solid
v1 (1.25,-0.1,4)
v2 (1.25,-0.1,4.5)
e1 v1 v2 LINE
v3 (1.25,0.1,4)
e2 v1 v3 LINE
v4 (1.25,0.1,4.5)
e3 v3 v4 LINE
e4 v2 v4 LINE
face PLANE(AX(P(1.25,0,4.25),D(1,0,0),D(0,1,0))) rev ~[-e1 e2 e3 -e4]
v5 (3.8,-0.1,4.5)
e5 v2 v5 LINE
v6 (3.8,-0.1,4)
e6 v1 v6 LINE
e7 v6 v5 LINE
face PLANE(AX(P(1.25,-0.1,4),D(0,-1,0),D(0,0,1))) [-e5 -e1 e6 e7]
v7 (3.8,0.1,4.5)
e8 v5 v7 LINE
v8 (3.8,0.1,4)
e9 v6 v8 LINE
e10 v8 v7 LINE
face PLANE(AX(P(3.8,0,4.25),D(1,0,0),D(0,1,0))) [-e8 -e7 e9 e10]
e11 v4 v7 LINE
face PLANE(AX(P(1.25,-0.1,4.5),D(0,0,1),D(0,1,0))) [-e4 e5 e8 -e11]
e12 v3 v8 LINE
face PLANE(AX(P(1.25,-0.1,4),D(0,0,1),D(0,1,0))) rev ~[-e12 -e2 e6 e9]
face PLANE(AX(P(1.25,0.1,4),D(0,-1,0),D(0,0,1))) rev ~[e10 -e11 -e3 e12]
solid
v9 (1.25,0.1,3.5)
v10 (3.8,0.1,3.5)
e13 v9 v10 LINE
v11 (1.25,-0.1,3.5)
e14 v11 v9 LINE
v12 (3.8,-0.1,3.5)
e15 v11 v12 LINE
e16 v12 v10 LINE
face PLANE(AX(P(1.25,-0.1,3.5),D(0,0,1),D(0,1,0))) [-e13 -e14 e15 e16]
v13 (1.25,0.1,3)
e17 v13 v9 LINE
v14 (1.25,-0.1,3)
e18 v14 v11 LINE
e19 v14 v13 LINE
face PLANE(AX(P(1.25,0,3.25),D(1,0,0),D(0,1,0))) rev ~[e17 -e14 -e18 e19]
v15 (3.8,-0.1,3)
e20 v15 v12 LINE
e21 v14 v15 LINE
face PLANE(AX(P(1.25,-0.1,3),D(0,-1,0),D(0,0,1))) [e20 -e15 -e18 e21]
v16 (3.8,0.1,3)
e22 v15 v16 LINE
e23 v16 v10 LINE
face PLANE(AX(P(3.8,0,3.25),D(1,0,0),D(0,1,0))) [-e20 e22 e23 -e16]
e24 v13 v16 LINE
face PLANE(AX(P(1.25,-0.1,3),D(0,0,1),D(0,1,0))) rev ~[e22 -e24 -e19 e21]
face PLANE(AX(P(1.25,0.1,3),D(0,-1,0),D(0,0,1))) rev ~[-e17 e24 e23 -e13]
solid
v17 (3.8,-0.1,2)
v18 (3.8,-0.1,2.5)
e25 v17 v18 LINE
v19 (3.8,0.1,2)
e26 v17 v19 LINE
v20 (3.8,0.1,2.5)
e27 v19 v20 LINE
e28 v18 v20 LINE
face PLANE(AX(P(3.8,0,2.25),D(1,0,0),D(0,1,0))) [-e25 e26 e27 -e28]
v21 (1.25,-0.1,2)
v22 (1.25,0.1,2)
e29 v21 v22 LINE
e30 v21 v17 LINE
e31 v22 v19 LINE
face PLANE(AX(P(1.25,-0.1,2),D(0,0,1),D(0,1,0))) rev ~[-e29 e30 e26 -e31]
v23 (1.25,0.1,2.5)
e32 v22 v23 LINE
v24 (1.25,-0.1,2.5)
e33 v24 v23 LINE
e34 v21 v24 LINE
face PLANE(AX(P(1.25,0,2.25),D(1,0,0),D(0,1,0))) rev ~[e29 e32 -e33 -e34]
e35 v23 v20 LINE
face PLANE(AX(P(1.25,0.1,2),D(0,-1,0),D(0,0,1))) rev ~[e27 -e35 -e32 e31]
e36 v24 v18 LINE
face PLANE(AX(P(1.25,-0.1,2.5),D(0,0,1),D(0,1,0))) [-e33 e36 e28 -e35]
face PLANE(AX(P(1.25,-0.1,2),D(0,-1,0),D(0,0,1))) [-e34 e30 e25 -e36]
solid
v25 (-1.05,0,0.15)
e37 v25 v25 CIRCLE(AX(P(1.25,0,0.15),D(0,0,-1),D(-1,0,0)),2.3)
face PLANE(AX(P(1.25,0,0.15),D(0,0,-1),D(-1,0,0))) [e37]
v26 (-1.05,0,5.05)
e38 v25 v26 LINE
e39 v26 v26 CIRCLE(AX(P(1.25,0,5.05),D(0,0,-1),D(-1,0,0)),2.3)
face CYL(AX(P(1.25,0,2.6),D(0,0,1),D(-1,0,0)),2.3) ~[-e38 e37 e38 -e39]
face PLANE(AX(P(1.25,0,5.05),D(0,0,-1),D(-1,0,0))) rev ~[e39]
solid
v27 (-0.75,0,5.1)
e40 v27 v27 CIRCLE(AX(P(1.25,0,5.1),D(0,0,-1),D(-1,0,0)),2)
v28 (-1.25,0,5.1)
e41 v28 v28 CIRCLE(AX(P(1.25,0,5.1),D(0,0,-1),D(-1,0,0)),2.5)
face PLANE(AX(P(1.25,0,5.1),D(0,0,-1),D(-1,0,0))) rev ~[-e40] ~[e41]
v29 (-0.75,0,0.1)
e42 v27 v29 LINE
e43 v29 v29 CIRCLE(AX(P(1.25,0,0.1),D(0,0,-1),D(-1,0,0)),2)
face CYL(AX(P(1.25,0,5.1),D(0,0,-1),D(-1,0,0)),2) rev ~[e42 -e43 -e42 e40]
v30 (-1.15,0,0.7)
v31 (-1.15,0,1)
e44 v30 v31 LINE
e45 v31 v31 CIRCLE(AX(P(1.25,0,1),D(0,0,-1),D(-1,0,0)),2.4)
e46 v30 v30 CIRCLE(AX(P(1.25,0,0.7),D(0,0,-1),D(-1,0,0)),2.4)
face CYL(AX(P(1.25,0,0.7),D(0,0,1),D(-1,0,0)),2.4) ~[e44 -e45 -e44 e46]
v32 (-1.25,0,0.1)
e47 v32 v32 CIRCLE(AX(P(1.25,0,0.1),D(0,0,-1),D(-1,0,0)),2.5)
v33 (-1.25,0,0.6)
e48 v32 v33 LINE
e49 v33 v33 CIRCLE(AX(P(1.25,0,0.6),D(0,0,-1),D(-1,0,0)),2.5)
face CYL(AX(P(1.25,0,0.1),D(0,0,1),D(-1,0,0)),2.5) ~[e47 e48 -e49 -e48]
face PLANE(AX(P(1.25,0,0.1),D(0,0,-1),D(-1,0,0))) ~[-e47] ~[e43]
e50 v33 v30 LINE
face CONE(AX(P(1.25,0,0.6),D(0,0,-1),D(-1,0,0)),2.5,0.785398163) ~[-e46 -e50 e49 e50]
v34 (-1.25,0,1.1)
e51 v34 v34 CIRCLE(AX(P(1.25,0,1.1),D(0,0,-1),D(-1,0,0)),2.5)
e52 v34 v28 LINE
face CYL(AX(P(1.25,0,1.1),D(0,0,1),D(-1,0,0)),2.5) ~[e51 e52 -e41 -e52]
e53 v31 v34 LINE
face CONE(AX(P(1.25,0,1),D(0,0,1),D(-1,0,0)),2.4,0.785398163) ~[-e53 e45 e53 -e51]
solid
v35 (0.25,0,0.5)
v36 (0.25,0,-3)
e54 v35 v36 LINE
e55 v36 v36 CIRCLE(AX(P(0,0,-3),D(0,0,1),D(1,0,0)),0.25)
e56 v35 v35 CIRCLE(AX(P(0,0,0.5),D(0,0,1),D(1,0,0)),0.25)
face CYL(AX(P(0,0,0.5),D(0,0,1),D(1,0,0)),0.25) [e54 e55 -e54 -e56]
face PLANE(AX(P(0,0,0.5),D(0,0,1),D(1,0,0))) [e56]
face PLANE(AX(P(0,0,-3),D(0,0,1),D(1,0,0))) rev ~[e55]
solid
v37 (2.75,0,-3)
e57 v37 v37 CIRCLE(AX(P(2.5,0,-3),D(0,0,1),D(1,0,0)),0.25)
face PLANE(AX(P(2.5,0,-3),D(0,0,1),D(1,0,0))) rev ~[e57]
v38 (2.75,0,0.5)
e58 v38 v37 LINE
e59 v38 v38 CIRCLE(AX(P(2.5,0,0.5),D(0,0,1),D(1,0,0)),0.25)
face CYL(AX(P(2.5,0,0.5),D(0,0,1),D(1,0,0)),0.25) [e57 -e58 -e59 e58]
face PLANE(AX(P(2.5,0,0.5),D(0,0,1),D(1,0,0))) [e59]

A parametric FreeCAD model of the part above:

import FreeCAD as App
import Part
import Sketcher
Q = App.Units.Quantity

doc = App.newDocument("Part")
body = doc.addObject("PartDesign::Body", "Body")

# Sketch on XZ plane
sketch1 = doc.addObject("Sketcher::SketchObject", "Sketch")
body.addObject(sketch1)
sketch1.AttachmentSupport = (doc.XZ_Plane, [""])
sketch1.MapMode = "FlatFace"
sketch1.addGeometry(Part.LineSegment(App.Vector(-1.25, 0.6, 0), App.Vector(-1.25, 0.1, 0)), False)
sketch1.addGeometry(Part.LineSegment(App.Vector(-1.25, 0.1, 0), App.Vector(-0.75, 0.1, 0)), False)
sketch1.addGeometry(Part.LineSegment(App.Vector(-0.75, 0.1, 0), App.Vector(-0.75, 5.1, 0)), False)
sketch1.addGeometry(Part.LineSegment(App.Vector(-0.75, 5.1, 0), App.Vector(-1.25, 5.1, 0)), False)
sketch1.addGeometry(Part.LineSegment(App.Vector(-1.25, 5.1, 0), App.Vector(-1.25, 1.1, 0)), False)
sketch1.addGeometry(Part.LineSegment(App.Vector(-1.25, 1.1, 0), App.Vector(-1.15, 1, 0)), False)
sketch1.addGeometry(Part.LineSegment(App.Vector(-1.15, 1, 0), App.Vector(-1.15, 0.7, 0)), False)
sketch1.addGeometry(Part.LineSegment(App.Vector(-1.15, 0.7, 0), App.Vector(-1.25, 0.6, 0)), False)
sketch1.addGeometry(Part.LineSegment(App.Vector(1.25, 5.1, 0), App.Vector(1.25, 0.1, 0)), True)  # axis
sketch1.addConstraint(Sketcher.Constraint("Coincident", 0, 2, 1, 1))
sketch1.addConstraint(Sketcher.Constraint("Coincident", 1, 2, 2, 1))
sketch1.addConstraint(Sketcher.Constraint("Coincident", 2, 2, 3, 1))
sketch1.addConstraint(Sketcher.Constraint("Coincident", 3, 2, 4, 1))
sketch1.addConstraint(Sketcher.Constraint("Coincident", 4, 2, 5, 1))
sketch1.addConstraint(Sketcher.Constraint("Coincident", 5, 2, 6, 1))
sketch1.addConstraint(Sketcher.Constraint("Coincident", 6, 2, 7, 1))
sketch1.addConstraint(Sketcher.Constraint("Coincident", 7, 2, 0, 1))
sketch1.addConstraint(Sketcher.Constraint("Vertical", 0))
sketch1.addConstraint(Sketcher.Constraint("Horizontal", 1))
sketch1.addConstraint(Sketcher.Constraint("Vertical", 2))
sketch1.addConstraint(Sketcher.Constraint("Horizontal", 3))
sketch1.addConstraint(Sketcher.Constraint("Vertical", 4))
sketch1.addConstraint(Sketcher.Constraint("Vertical", 6))
sketch1.addConstraint(Sketcher.Constraint("Vertical", 8))
sketch1.addConstraint(Sketcher.Constraint("Symmetric", 3, 2, 8, 1, -2))
sketch1.addConstraint(Sketcher.Constraint("Symmetric", 0, 2, 8, 2, -2))
sketch1.addConstraint(Sketcher.Constraint("Perpendicular", 5, 7))
sketch1.addConstraint(Sketcher.Constraint("Equal", 3, 0))
sketch1.addConstraint(Sketcher.Constraint("Equal", 5, 7))
sketch1.addConstraint(Sketcher.Constraint("DistanceY", 2, 1, 2, 2, Q("5 mm")))
sketch1.addConstraint(Sketcher.Constraint("DistanceY", 4, 2, 4, 1, Q("4 mm")))
sketch1.addConstraint(Sketcher.Constraint("DistanceX", 1, 1, 1, 2, Q("0.5 mm")))
sketch1.addConstraint(Sketcher.Constraint("DistanceY", 6, 2, 6, 1, Q("0.3 mm")))
sketch1.addConstraint(Sketcher.Constraint("DistanceY", -1, 1, 5, 2, Q("1 mm")))
sketch1.addConstraint(Sketcher.Constraint("DistanceX", 2, 2, 8, 1, Q("2 mm")))
revolution = doc.addObject("PartDesign::Revolution", "Revolution")
body.addObject(revolution)
revolution.Profile = sketch1
revolution.ReferenceAxis = (sketch1, ["Axis0"])
revolution.Angle = 360
body2 = doc.addObject("PartDesign::Body", "Body001")

# Sketch on XZ plane
sketch2 = doc.addObject("Sketcher::SketchObject", "Sketch001")
body2.addObject(sketch2)
sketch2.AttachmentSupport = (doc.getObject("XZ_Plane001"), [""])
sketch2.MapMode = "FlatFace"
sketch2.addGeometry(Part.LineSegment(App.Vector(-1.05, 5.05, 0), App.Vector(-1.05, 0.15, 0)), False)
sketch2.addGeometry(Part.LineSegment(App.Vector(-1.05, 0.15, 0), App.Vector(1.25, 0.15, 0)), False)
sketch2.addGeometry(Part.LineSegment(App.Vector(1.25, 0.15, 0), App.Vector(1.25, 5.05, 0)), False)
sketch2.addGeometry(Part.LineSegment(App.Vector(1.25, 5.05, 0), App.Vector(-1.05, 5.05, 0)), False)
sketch2.addGeometry(Part.LineSegment(App.Vector(1.25, 5.05, 0), App.Vector(1.25, 0.15, 0)), True)  # axis
sketch2.addConstraint(Sketcher.Constraint("Coincident", 0, 2, 1, 1))
sketch2.addConstraint(Sketcher.Constraint("Coincident", 1, 2, 2, 1))
sketch2.addConstraint(Sketcher.Constraint("Coincident", 2, 2, 3, 1))
sketch2.addConstraint(Sketcher.Constraint("Coincident", 3, 2, 0, 1))
sketch2.addConstraint(Sketcher.Constraint("Vertical", 0))
sketch2.addConstraint(Sketcher.Constraint("Horizontal", 1))
sketch2.addConstraint(Sketcher.Constraint("Vertical", 2))
sketch2.addConstraint(Sketcher.Constraint("Horizontal", 3))
sketch2.addConstraint(Sketcher.Constraint("Vertical", 4))
sketch2.addConstraint(Sketcher.Constraint("Coincident", 4, 1, 2, 2))
sketch2.addConstraint(Sketcher.Constraint("Horizontal", 0, 2, 4, 2))
sketch2.addConstraint(Sketcher.Constraint("DistanceX", 1, 1, 1, 2, Q("2.3 mm")))
sketch2.addConstraint(Sketcher.Constraint("DistanceY", 0, 2, 0, 1, Q("4.9 mm")))
sketch2.addConstraint(Sketcher.Constraint("DistanceX", 0, 2, -1, 1, Q("1.05 mm")))
sketch2.addConstraint(Sketcher.Constraint("DistanceY", -1, 1, 0, 2, Q("0.15 mm")))
revolution2 = doc.addObject("PartDesign::Revolution", "Revolution001")
body2.addObject(revolution2)
revolution2.Profile = sketch2
revolution2.ReferenceAxis = (sketch2, ["Axis0"])
revolution2.Angle = 360
body3 = doc.addObject("PartDesign::Body", "Body002")
body3.AllowCompound = True

# Sketch on XY plane
sketch3 = doc.addObject("Sketcher::SketchObject", "Sketch002")
body3.addObject(sketch3)
sketch3.AttachmentSupport = (doc.getObject("XY_Plane002"), [""])
sketch3.MapMode = "FlatFace"
sketch3.AttachmentOffset = App.Placement(App.Vector(0, 0, 0.5), App.Rotation())
sketch3.addGeometry(Part.Circle(App.Vector(0, 0, 0), App.Vector(0, 0, 1), 0.25), False)
sketch3.addGeometry(Part.Circle(App.Vector(2.5, 0, 0), App.Vector(0, 0, 1), 0.25), False)
sketch3.addConstraint(Sketcher.Constraint("Coincident", 0, 3, -1, 1))
sketch3.addConstraint(Sketcher.Constraint("Equal", 0, 1))
sketch3.addConstraint(Sketcher.Constraint("PointOnObject", 1, 3, -1))
sketch3.addConstraint(Sketcher.Constraint("Diameter", 0, Q("0.5 mm")))
sketch3.addConstraint(Sketcher.Constraint("DistanceX", -1, 1, 1, 3, Q("2.5 mm")))
pad1 = doc.addObject("PartDesign::Pad", "Pad")
body3.addObject(pad1)
pad1.Profile = sketch3
pad1.Length = 3.5
pad1.Reversed = True
body4 = doc.addObject("PartDesign::Body", "Body003")
body4.AllowCompound = True

# Sketch on YZ plane
sketch4 = doc.addObject("Sketcher::SketchObject", "Sketch003")
body4.addObject(sketch4)
sketch4.AttachmentSupport = (doc.getObject("YZ_Plane003"), [""])
sketch4.MapMode = "FlatFace"
sketch4.AttachmentOffset = App.Placement(App.Vector(0, 0, 1.25), App.Rotation())
sketch4.addGeometry(Part.LineSegment(App.Vector(-0.1, 2.5, 0), App.Vector(-0.1, 2, 0)), False)
sketch4.addGeometry(Part.LineSegment(App.Vector(-0.1, 2, 0), App.Vector(0.1, 2, 0)), False)
sketch4.addGeometry(Part.LineSegment(App.Vector(0.1, 2, 0), App.Vector(0.1, 2.5, 0)), False)
sketch4.addGeometry(Part.LineSegment(App.Vector(0.1, 2.5, 0), App.Vector(-0.1, 2.5, 0)), False)
sketch4.addGeometry(Part.LineSegment(App.Vector(-0.1, 3.5, 0), App.Vector(-0.1, 3, 0)), False)
sketch4.addGeometry(Part.LineSegment(App.Vector(-0.1, 3, 0), App.Vector(0.1, 3, 0)), False)
sketch4.addGeometry(Part.LineSegment(App.Vector(0.1, 3, 0), App.Vector(0.1, 3.5, 0)), False)
sketch4.addGeometry(Part.LineSegment(App.Vector(0.1, 3.5, 0), App.Vector(-0.1, 3.5, 0)), False)
sketch4.addGeometry(Part.LineSegment(App.Vector(-0.1, 4.5, 0), App.Vector(-0.1, 4, 0)), False)
sketch4.addGeometry(Part.LineSegment(App.Vector(-0.1, 4, 0), App.Vector(0.1, 4, 0)), False)
sketch4.addGeometry(Part.LineSegment(App.Vector(0.1, 4, 0), App.Vector(0.1, 4.5, 0)), False)
sketch4.addGeometry(Part.LineSegment(App.Vector(0.1, 4.5, 0), App.Vector(-0.1, 4.5, 0)), False)
sketch4.addConstraint(Sketcher.Constraint("Coincident", 0, 2, 1, 1))
sketch4.addConstraint(Sketcher.Constraint("Coincident", 1, 2, 2, 1))
sketch4.addConstraint(Sketcher.Constraint("Coincident", 2, 2, 3, 1))
sketch4.addConstraint(Sketcher.Constraint("Coincident", 3, 2, 0, 1))
sketch4.addConstraint(Sketcher.Constraint("Coincident", 4, 2, 5, 1))
sketch4.addConstraint(Sketcher.Constraint("Coincident", 5, 2, 6, 1))
sketch4.addConstraint(Sketcher.Constraint("Coincident", 6, 2, 7, 1))
sketch4.addConstraint(Sketcher.Constraint("Coincident", 7, 2, 4, 1))
sketch4.addConstraint(Sketcher.Constraint("Coincident", 8, 2, 9, 1))
sketch4.addConstraint(Sketcher.Constraint("Coincident", 9, 2, 10, 1))
sketch4.addConstraint(Sketcher.Constraint("Coincident", 10, 2, 11, 1))
sketch4.addConstraint(Sketcher.Constraint("Coincident", 11, 2, 8, 1))
sketch4.addConstraint(Sketcher.Constraint("Vertical", 0))
sketch4.addConstraint(Sketcher.Constraint("Horizontal", 1))
sketch4.addConstraint(Sketcher.Constraint("Vertical", 2))
sketch4.addConstraint(Sketcher.Constraint("Horizontal", 3))
sketch4.addConstraint(Sketcher.Constraint("Vertical", 4))
sketch4.addConstraint(Sketcher.Constraint("Horizontal", 5))
sketch4.addConstraint(Sketcher.Constraint("Vertical", 6))
sketch4.addConstraint(Sketcher.Constraint("Horizontal", 7))
sketch4.addConstraint(Sketcher.Constraint("Vertical", 8))
sketch4.addConstraint(Sketcher.Constraint("Horizontal", 9))
sketch4.addConstraint(Sketcher.Constraint("Vertical", 10))
sketch4.addConstraint(Sketcher.Constraint("Horizontal", 11))
sketch4.addConstraint(Sketcher.Constraint("Vertical", 3, 2, 4, 2))
sketch4.addConstraint(Sketcher.Constraint("Vertical", 2, 2, 5, 2))
sketch4.addConstraint(Sketcher.Constraint("Vertical", 7, 2, 8, 2))
sketch4.addConstraint(Sketcher.Constraint("Vertical", 6, 2, 9, 2))
sketch4.addConstraint(Sketcher.Constraint("Equal", 2, 4))
sketch4.addConstraint(Sketcher.Constraint("Equal", 6, 8))
sketch4.addConstraint(Sketcher.Constraint("DistanceX", 1, 1, 1, 2, Q("0.2 mm")))
sketch4.addConstraint(Sketcher.Constraint("DistanceY", 0, 2, 0, 1, Q("0.5 mm")))
sketch4.addConstraint(Sketcher.Constraint("DistanceY", -1, 1, 0, 2, Q("2 mm")))
sketch4.addConstraint(Sketcher.Constraint("DistanceY", -1, 1, 4, 2, Q("3 mm")))
sketch4.addConstraint(Sketcher.Constraint("DistanceY", -1, 1, 8, 2, Q("4 mm")))
sketch4.addConstraint(Sketcher.Constraint("DistanceX", 0, 2, -1, 1, Q("0.1 mm")))
pad2 = doc.addObject("PartDesign::Pad", "Pad001")
body4.addObject(pad2)
pad2.Profile = sketch4
pad2.Length = 2.55

doc.recompute()
